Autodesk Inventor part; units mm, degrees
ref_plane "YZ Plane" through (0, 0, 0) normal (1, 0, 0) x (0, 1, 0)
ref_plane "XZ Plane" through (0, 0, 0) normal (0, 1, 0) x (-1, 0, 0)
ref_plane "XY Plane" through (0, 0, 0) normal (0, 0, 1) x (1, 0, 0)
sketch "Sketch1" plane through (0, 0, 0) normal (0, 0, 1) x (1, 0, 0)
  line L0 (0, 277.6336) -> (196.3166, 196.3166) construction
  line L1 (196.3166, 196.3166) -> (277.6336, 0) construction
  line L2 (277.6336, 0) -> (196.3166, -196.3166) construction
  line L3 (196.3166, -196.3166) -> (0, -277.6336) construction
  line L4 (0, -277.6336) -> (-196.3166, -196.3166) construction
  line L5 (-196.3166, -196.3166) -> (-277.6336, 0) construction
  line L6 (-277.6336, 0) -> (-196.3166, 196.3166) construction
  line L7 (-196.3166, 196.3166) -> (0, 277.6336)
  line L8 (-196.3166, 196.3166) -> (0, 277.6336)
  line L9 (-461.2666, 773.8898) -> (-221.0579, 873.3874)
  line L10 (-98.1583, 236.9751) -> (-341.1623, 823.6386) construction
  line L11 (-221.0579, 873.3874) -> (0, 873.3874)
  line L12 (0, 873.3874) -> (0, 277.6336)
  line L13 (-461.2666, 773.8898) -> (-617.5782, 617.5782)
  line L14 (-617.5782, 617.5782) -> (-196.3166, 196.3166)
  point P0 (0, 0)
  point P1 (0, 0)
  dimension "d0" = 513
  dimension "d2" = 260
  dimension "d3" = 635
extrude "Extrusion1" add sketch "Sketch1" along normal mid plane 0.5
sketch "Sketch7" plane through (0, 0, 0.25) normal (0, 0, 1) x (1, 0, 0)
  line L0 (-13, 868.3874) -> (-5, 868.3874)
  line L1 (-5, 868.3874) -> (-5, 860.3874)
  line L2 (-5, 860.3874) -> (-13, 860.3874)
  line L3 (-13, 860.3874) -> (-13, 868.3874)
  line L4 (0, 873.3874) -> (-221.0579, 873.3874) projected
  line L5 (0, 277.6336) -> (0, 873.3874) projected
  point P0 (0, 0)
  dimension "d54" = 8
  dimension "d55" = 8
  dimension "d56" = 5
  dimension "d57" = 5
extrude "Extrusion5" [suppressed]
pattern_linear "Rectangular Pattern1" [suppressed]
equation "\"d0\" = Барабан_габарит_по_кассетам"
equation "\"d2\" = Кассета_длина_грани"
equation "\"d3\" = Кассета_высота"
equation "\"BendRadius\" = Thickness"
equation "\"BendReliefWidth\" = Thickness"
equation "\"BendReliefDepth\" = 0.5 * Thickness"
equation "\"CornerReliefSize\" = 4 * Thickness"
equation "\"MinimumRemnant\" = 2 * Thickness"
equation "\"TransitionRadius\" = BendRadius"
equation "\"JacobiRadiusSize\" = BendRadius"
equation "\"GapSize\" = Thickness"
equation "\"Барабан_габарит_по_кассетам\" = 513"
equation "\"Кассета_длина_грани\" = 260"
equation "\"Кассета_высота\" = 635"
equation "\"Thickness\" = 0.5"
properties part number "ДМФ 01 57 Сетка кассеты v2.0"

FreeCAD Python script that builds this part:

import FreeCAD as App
import Part
import Sketcher

V = App.Vector
Q = App.Units.Quantity

doc = App.newDocument("Part")
body = doc.addObject("PartDesign::Body", "Body")

# Sketch on XY plane
sketch1 = doc.addObject("Sketcher::SketchObject", "Sketch")
body.addObject(sketch1)
sketch1.AttachmentSupport = (doc.XY_Plane, [""])
sketch1.MapMode = "FlatFace"
sketch1.addGeometry([
    Part.LineSegment(V(-617.5782, 617.5782, 0), V(-196.3166, 196.3166, 0)),  # 0
    Part.LineSegment(V(-196.3166, 196.3166, 0), V(0, 277.6336, 0)),  # 1
    Part.LineSegment(V(0, 277.6336, 0), V(0, 873.3874, 0)),  # 2
    Part.LineSegment(V(0, 873.3874, 0), V(-221.0579, 873.3874, 0)),  # 3
    Part.LineSegment(V(-221.0579, 873.3874, 0), V(-461.2666, 773.8898, 0)),  # 4
    Part.LineSegment(V(-461.2666, 773.8898, 0), V(-617.5782, 617.5782, 0)),  # 5
], False)
sketch1.addConstraint([
    Sketcher.Constraint("Coincident", 0, 2, 1, 1),
    Sketcher.Constraint("Coincident", 1, 2, 2, 1),
    Sketcher.Constraint("Coincident", 2, 2, 3, 1),
    Sketcher.Constraint("Coincident", 3, 2, 4, 1),
    Sketcher.Constraint("Coincident", 4, 2, 5, 1),
    Sketcher.Constraint("Coincident", 5, 2, 0, 1),
    Sketcher.Constraint("Vertical", 2),
    Sketcher.Constraint("Horizontal", 3),
    Sketcher.Constraint("PointOnObject", 1, 2, -2),
    Sketcher.Constraint("Parallel", 1, 4),
    Sketcher.Constraint("Perpendicular", 0, 5),
    Sketcher.Constraint("Distance", 4, 260.0),
    Sketcher.Constraint("Angle", 0, Q("-45 deg")),
    Sketcher.Constraint("Angle", 1, Q("22.5 deg")),
    Sketcher.Constraint("DistanceX", 3, 2, 3, 1, 221.058),
    Sketcher.Constraint("DistanceX", 4, 2, 0, 2, 264.95),
    Sketcher.Constraint("Distance", 5, 221.058),
    Sketcher.Constraint("DistanceY", -1, 1, 0, 2, 196.3166),
])
pad1 = doc.addObject("PartDesign::Pad", "Pad")
body.addObject(pad1)
pad1.Profile = sketch1
pad1.Length = 0.5
pad1.Midplane = True

doc.recompute()
